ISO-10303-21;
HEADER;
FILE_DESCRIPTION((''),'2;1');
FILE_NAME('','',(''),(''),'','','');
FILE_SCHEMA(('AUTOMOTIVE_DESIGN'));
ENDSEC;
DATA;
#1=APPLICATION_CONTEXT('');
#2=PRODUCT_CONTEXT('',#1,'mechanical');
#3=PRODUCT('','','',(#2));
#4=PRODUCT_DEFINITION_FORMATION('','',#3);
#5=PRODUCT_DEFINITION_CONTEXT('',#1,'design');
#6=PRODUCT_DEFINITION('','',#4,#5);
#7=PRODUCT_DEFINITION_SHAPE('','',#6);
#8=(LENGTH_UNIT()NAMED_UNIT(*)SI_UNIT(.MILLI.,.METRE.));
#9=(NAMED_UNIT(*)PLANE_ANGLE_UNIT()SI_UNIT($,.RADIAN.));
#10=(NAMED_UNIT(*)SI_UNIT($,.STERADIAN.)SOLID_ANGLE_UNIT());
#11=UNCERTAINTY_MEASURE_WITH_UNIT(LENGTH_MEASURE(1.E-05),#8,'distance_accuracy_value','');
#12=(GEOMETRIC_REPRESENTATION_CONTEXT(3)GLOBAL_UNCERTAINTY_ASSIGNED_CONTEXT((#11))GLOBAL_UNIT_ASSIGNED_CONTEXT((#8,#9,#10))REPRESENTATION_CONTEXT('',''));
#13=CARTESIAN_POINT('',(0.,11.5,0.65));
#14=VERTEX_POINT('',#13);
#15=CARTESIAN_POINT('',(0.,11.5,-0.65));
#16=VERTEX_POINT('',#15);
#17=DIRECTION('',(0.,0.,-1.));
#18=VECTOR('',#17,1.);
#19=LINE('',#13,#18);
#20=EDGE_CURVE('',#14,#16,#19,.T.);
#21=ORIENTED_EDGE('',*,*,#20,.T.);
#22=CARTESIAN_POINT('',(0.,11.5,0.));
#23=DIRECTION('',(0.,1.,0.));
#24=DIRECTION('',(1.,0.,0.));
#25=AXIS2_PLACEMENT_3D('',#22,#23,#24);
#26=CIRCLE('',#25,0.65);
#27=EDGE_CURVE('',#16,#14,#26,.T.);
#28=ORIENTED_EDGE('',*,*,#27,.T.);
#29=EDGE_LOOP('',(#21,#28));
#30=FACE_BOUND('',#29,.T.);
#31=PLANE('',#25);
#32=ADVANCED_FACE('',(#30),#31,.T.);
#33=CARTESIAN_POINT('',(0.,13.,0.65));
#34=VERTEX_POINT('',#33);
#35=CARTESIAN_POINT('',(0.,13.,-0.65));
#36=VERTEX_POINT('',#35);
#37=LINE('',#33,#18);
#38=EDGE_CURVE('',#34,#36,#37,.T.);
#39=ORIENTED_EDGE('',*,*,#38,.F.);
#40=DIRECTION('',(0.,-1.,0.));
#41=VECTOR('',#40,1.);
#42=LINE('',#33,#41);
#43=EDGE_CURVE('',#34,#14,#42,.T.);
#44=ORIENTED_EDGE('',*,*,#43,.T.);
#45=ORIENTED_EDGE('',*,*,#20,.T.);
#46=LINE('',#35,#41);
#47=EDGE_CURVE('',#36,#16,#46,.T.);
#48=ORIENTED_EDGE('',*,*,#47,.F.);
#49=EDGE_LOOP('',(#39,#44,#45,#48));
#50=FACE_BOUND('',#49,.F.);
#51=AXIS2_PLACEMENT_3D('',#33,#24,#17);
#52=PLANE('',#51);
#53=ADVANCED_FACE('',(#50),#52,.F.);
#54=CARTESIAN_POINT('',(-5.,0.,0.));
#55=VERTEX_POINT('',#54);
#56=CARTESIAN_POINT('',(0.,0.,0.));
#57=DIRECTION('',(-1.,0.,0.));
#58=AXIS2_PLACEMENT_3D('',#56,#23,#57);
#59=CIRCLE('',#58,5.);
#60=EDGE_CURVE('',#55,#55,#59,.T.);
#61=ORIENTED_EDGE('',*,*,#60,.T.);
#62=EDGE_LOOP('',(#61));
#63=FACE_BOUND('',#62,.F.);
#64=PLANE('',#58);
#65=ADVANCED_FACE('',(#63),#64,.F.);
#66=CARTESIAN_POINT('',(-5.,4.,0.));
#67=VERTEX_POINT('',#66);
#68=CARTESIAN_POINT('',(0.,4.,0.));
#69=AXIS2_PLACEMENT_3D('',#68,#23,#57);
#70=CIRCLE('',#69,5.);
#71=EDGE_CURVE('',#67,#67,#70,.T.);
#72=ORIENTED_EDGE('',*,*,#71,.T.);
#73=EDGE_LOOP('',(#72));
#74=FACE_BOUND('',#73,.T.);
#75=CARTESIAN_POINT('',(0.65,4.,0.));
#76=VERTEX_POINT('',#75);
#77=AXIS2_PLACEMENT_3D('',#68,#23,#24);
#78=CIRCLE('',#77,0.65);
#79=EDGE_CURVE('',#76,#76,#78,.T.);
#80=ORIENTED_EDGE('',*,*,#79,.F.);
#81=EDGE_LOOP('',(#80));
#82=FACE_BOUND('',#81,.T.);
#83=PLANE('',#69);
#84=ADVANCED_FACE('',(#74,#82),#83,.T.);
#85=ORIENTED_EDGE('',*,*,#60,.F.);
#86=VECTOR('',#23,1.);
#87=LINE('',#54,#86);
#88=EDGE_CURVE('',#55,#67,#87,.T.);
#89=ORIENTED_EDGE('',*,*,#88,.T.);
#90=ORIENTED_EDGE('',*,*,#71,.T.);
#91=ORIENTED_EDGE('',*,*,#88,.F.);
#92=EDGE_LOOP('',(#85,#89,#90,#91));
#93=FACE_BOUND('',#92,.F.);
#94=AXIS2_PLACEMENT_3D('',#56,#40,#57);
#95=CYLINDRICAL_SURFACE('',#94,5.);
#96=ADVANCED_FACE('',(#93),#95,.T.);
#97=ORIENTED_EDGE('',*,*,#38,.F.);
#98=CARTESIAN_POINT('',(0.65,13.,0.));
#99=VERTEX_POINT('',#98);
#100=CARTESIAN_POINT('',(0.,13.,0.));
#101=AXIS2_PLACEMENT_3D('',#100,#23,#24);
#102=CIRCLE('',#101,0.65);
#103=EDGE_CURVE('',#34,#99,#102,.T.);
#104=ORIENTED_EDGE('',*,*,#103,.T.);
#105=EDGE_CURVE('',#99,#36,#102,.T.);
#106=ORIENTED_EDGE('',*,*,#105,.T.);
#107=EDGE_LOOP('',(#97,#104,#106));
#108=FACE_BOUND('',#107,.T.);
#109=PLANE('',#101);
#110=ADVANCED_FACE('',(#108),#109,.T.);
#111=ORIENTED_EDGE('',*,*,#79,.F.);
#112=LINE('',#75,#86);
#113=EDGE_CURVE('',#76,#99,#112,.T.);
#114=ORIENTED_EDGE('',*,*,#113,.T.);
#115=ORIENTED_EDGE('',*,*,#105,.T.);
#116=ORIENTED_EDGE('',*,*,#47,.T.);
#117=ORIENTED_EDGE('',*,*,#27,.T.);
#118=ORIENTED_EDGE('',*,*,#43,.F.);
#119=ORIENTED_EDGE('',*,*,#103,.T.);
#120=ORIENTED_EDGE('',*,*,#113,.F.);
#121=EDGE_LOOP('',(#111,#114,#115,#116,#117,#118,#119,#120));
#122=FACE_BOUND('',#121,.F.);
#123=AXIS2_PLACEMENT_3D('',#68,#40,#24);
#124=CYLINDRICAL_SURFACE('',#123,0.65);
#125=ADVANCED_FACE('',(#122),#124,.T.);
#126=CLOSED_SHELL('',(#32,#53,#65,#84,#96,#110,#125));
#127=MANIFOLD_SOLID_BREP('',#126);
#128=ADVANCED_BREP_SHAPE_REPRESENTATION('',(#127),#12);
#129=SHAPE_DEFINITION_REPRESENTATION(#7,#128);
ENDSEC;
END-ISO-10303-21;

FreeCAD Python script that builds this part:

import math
import FreeCAD as App
import Part
import Sketcher
from FreeCAD import Vector
Q = App.Units.Quantity

doc = App.newDocument("Part")
params = doc.addObject("Spreadsheet::Sheet", "Params")
for row, (alias, value) in enumerate([
    ("sketch1_diameter", "10 mm"),
    ("pad1_length", "4 mm"),
    ("sketch2_diameter", "1.3 mm"),
    ("pad2_length", "9 mm"),
    ("sketch3_radius", "0.65 mm"),
    ("pocket1_length", "1.5 mm"),
], start=1):
    params.set(f"A{row}", alias)
    params.set(f"B{row}", "=" + value)
    params.setAlias(f"B{row}", alias)

body = doc.addObject("PartDesign::Body", "Body")

sketch1 = body.newObject("Sketcher::SketchObject", "Sketch")
sketch1.AttachmentSupport = (doc.getObject("XZ_Plane"), [""])
sketch1.MapMode = "FlatFace"
sketch1.addGeometry(Part.Circle(Vector(0, 0, 0), Vector(0, 0, 1), 5), False)
sketch1.addConstraint([
    Sketcher.Constraint("Coincident", 0, 3, -1, 1),
    Sketcher.Constraint("Diameter", 0, Q("10 mm")),
])
sketch1.setExpression("Constraints[1]", "Params.sketch1_diameter")
pad1 = body.newObject("PartDesign::Pad", "Pad")
pad1.Profile = sketch1
pad1.setExpression("Length", "Params.pad1_length")
pad1.Reversed = True

sketch2 = body.newObject("Sketcher::SketchObject", "Sketch001")
sketch2.AttachmentSupport = (doc.getObject("XZ_Plane"), [""])
sketch2.MapMode = "FlatFace"
sketch2.AttachmentOffset = App.Placement(Vector(0, 0, -4), App.Rotation())
sketch2.addGeometry(Part.Circle(Vector(0, 0, 0), Vector(0, 0, 1), 0.65), False)
sketch2.addConstraint([
    Sketcher.Constraint("Coincident", 0, 3, -1, 1),
    Sketcher.Constraint("Diameter", 0, Q("1.3 mm")),
])
sketch2.setExpression("Constraints[1]", "Params.sketch2_diameter")
pad2 = body.newObject("PartDesign::Pad", "Pad001")
pad2.Profile = sketch2
pad2.setExpression("Length", "Params.pad2_length")
pad2.Reversed = True

sketch3 = body.newObject("Sketcher::SketchObject", "Sketch002")
sketch3.AttachmentSupport = (doc.getObject("XZ_Plane"), [""])
sketch3.MapMode = "FlatFace"
sketch3.AttachmentOffset = App.Placement(Vector(0, 0, -13), App.Rotation())
sketch3.addGeometry([
    Part.LineSegment(Vector(0, 0.65, 0), Vector(0, -0.65, 0)),
    Part.ArcOfCircle(Part.Circle(Vector(0, 0, 0), Vector(0, 0, 1), 0.65), math.radians(90), math.radians(270)),
], False)
sketch3.addConstraint([
    Sketcher.Constraint("Coincident", 0, 1, 1, 1),
    Sketcher.Constraint("Coincident", 1, 2, 0, 2),
    Sketcher.Constraint("Vertical", 0),
    Sketcher.Constraint("Coincident", 1, 3, -1, 1),
    Sketcher.Constraint("PointOnObject", 0, 1, -2),
    Sketcher.Constraint("Radius", 1, Q("0.65 mm")),
])
sketch3.setExpression("Constraints[5]", "Params.sketch3_radius")
pocket1 = body.newObject("PartDesign::Pocket", "Pocket")
pocket1.Profile = sketch3
pocket1.setExpression("Length", "Params.pocket1_length")
pocket1.Reversed = True

doc.recompute()
